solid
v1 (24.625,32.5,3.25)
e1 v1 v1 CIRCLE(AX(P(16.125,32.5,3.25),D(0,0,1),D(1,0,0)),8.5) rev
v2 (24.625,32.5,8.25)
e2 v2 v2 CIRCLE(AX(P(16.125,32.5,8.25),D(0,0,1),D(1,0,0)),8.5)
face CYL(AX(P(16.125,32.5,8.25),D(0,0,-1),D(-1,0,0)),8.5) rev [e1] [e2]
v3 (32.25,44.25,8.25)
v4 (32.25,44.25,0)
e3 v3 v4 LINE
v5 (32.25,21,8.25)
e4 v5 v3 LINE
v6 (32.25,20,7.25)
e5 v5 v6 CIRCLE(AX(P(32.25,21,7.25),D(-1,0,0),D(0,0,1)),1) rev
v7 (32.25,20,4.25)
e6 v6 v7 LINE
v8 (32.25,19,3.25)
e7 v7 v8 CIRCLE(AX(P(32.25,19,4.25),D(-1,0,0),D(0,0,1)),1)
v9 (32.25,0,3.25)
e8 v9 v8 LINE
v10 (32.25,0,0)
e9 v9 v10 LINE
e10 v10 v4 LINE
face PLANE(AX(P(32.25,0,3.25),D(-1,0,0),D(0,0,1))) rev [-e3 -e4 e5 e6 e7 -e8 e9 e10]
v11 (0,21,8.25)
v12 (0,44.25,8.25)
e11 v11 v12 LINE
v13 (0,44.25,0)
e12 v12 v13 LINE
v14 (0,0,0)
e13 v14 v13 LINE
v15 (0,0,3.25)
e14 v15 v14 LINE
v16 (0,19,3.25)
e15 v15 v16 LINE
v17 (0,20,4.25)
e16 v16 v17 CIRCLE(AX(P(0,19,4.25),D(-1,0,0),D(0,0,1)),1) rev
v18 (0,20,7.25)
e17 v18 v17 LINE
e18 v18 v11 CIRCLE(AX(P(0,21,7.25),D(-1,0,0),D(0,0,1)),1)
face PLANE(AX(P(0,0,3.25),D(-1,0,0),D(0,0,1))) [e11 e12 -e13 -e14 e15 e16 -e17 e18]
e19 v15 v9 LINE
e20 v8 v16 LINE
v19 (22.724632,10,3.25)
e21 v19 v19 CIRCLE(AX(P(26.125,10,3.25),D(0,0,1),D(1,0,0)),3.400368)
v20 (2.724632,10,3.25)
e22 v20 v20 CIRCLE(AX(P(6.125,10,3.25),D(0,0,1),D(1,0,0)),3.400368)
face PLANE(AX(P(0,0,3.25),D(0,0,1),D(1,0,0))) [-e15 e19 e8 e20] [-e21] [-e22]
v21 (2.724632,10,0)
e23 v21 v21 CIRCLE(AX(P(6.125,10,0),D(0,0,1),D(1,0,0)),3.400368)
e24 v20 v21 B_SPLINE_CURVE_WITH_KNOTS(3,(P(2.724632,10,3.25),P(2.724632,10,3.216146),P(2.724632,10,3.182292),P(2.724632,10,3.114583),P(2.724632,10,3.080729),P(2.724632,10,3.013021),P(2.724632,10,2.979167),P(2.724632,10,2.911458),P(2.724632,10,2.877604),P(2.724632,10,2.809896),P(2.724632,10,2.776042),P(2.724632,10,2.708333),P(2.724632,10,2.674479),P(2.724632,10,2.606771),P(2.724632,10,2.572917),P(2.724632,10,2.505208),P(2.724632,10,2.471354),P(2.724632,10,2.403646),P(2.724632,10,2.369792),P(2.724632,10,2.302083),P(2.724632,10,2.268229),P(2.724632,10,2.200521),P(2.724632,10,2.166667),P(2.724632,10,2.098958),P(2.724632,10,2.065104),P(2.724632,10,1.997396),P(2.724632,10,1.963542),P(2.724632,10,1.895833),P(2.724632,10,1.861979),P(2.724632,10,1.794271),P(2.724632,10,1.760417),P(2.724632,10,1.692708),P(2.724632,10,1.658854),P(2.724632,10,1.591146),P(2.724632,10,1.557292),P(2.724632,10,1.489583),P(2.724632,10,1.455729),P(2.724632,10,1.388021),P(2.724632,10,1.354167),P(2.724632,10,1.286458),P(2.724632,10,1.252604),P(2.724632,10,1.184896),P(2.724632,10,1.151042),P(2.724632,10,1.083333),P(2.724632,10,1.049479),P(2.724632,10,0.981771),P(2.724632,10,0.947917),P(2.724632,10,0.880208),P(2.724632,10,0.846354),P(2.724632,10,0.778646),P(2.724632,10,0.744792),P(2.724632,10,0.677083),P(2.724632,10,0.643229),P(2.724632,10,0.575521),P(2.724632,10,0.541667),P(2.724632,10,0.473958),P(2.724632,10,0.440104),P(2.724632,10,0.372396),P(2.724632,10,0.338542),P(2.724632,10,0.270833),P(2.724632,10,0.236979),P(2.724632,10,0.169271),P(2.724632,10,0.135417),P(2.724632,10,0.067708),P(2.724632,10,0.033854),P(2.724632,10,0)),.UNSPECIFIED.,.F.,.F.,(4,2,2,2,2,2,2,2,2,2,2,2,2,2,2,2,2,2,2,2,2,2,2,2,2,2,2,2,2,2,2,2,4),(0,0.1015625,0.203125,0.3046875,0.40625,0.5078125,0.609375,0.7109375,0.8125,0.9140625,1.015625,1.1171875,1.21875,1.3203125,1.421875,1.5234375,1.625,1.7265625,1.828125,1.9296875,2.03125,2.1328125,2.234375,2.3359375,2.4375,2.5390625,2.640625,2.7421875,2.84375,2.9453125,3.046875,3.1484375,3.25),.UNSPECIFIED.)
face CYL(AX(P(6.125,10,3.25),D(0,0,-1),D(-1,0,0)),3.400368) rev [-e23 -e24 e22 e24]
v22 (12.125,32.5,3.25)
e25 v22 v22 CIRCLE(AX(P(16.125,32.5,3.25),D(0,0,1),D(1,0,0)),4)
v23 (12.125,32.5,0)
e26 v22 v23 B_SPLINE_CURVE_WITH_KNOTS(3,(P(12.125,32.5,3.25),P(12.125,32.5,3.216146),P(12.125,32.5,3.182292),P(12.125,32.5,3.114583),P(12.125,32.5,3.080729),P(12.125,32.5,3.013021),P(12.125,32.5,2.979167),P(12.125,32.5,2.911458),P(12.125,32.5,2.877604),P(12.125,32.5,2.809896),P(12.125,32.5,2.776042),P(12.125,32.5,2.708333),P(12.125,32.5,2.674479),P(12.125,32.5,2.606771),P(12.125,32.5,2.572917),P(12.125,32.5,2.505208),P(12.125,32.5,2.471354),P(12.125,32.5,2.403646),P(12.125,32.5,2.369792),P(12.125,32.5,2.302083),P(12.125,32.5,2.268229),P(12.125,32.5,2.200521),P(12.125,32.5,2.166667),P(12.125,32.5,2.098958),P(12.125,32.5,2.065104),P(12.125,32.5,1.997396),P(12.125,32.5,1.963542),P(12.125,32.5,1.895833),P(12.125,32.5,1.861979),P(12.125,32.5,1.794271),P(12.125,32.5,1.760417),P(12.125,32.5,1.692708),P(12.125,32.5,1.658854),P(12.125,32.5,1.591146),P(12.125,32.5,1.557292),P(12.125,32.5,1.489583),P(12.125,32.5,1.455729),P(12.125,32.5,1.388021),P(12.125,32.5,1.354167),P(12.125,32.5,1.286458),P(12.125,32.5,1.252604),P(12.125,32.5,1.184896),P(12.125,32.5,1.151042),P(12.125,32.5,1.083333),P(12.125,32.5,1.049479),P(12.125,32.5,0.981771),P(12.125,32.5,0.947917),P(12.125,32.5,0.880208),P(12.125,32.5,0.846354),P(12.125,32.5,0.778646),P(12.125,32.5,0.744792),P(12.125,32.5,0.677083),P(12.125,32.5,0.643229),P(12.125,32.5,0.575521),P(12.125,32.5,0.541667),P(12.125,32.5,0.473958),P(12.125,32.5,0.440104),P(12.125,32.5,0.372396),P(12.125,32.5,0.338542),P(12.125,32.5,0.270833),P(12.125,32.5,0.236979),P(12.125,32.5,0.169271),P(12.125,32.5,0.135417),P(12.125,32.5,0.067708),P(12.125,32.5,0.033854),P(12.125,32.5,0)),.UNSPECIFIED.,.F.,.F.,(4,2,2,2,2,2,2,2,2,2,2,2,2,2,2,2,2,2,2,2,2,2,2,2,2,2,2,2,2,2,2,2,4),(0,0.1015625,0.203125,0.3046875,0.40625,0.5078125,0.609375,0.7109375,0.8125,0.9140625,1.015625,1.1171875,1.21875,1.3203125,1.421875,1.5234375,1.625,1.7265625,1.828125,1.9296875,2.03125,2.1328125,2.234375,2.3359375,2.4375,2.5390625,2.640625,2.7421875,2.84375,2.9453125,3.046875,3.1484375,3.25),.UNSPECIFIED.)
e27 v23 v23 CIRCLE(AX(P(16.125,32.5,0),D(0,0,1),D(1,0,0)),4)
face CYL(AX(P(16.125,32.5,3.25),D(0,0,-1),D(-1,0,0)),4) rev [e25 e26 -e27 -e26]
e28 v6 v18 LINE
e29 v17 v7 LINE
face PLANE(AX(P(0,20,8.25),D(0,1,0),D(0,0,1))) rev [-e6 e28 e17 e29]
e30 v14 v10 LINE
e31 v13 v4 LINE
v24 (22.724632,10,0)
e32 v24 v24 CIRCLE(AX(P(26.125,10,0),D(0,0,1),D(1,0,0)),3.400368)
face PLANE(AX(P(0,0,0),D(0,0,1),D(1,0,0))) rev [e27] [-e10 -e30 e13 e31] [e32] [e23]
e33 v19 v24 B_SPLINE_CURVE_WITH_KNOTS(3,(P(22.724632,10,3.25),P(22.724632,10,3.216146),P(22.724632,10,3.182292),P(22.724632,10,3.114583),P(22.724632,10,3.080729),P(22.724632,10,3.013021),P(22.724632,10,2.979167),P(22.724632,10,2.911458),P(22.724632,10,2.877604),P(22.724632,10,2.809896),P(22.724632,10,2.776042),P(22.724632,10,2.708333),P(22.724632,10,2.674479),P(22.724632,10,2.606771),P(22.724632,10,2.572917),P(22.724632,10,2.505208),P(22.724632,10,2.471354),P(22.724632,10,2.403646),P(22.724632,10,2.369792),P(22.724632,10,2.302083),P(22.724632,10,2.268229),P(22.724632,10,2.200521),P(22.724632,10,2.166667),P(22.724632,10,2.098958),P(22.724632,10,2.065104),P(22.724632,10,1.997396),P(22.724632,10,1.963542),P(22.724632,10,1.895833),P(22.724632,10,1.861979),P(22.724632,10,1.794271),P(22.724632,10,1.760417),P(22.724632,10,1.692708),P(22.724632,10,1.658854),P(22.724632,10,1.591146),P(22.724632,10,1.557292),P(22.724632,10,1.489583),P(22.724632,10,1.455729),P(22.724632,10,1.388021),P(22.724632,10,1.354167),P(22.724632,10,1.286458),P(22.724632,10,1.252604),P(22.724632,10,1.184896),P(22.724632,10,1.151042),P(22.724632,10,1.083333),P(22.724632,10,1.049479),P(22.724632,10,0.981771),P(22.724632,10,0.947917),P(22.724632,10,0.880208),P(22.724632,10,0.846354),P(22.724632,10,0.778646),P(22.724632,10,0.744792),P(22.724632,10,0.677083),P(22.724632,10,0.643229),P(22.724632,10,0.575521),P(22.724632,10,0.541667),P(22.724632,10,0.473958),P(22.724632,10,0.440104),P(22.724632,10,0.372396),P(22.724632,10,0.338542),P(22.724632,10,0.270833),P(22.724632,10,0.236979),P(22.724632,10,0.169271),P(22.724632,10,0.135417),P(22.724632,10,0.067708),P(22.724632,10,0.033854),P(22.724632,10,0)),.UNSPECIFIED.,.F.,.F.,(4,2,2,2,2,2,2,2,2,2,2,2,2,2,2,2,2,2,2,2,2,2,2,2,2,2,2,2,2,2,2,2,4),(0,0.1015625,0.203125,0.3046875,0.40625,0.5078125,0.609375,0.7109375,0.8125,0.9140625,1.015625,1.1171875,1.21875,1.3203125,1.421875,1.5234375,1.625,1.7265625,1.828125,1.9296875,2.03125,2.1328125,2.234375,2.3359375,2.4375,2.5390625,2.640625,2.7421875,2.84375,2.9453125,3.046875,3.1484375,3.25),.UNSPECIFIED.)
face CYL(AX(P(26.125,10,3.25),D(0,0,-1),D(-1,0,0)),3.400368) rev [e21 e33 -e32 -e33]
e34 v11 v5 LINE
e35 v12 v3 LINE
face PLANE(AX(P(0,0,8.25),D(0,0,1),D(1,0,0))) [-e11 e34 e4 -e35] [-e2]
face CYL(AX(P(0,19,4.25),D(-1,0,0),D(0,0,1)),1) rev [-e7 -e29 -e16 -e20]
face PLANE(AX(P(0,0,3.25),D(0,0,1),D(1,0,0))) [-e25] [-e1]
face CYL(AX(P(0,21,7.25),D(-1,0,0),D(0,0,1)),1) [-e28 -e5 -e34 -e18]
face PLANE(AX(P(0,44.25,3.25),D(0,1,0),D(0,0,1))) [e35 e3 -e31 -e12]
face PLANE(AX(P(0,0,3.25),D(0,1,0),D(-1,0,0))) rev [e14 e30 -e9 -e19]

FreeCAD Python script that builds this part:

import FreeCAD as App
import Part
import Sketcher

V = App.Vector


def edges_at(feature, points):
    """Names of the edges that pass closest to the given points."""
    edges = feature.Shape.Edges
    near = lambda p: min(range(len(edges)), key=lambda i: edges[i].distToShape(Part.Vertex(*p))[0])
    return sorted({f"Edge{near(p) + 1}" for p in points})

doc = App.newDocument("Part")
body = doc.addObject("PartDesign::Body", "Body")

sketch1 = body.newObject("Sketcher::SketchObject", "Sketch")
sketch1.AttachmentSupport = (doc.getObject("XY_Plane"), [""])
sketch1.MapMode = "FlatFace"
sketch1.addGeometry([
    Part.LineSegment(V(0, 0, 0), V(32.2, 0, 0)),
    Part.LineSegment(V(32.2, 0, 0), V(32.2, 44.2, 0)),
    Part.LineSegment(V(32.2, 44.2, 0), V(0, 44.2, 0)),
    Part.LineSegment(V(0, 44.2, 0), V(0, 0, 0)),
    Part.Circle(V(6.1, 10, 0), V(0, 0, 1), 3.4),
    Part.Circle(V(26.1, 10, 0), V(0, 0, 1), 3.4),
    Part.Circle(V(16.1, 32.5, 0), V(0, 0, 1), 4),
], False)
sketch1.addConstraint([
    Sketcher.Constraint("Coincident", 0, 2, 1, 1),
    Sketcher.Constraint("Coincident", 1, 2, 2, 1),
    Sketcher.Constraint("Coincident", 2, 2, 3, 1),
    Sketcher.Constraint("Coincident", 3, 2, 0, 1),
    Sketcher.Constraint("Horizontal", 0),
    Sketcher.Constraint("Vertical", 1),
    Sketcher.Constraint("Horizontal", 2),
    Sketcher.Constraint("Vertical", 3),
    Sketcher.Constraint("Coincident", 3, 2, -1, 1),
    Sketcher.Constraint("Equal", 4, 5),
    Sketcher.Constraint("Horizontal", 4, 3, 5, 3),
    Sketcher.Constraint("Diameter", 6, 8.0),
    Sketcher.Constraint("DistanceY", -1, 1, 4, 3, 10.0),
    Sketcher.Constraint("DistanceX", 4, 3, 5, 3, 20.0),
    Sketcher.Constraint("DistanceX", 4, 3, 6, 3, 10.0),
    Sketcher.Constraint("DistanceX", 0, 1, 0, 2, 32.25),
    Sketcher.Constraint("DistanceY", 1, 1, 1, 2, 44.25),
    Sketcher.Constraint("DistanceY", -1, 1, 6, 3, 32.5),
    Sketcher.Constraint("Diameter", 4, 6.800735),
    Sketcher.Constraint("DistanceX", -1, 1, 4, 3, 6.125),
])
pad1 = body.newObject("PartDesign::Pad", "Pad")
pad1.Profile = sketch1
pad1.Length = 3.25

sketch2 = body.newObject("Sketcher::SketchObject", "Sketch001")
sketch2.AttachmentSupport = (doc.getObject("XY_Plane"), [""])
sketch2.MapMode = "FlatFace"
sketch2.addGeometry([
    Part.LineSegment(V(0, 44, 0), V(0, 20, 0)),
    Part.LineSegment(V(0, 20, 0), V(32, 20, 0)),
    Part.LineSegment(V(32, 20, 0), V(32, 44, 0)),
    Part.LineSegment(V(32, 44, 0), V(0, 44, 0)),
    Part.Circle(V(16, 32, 0), V(0, 0, 1), 8),
], False)
sketch2.addConstraint([
    Sketcher.Constraint("Coincident", 0, 2, 1, 1),
    Sketcher.Constraint("Coincident", 1, 2, 2, 1),
    Sketcher.Constraint("Coincident", 2, 2, 3, 1),
    Sketcher.Constraint("Coincident", 3, 2, 0, 1),
    Sketcher.Constraint("Vertical", 0),
    Sketcher.Constraint("Horizontal", 1),
    Sketcher.Constraint("Vertical", 2),
    Sketcher.Constraint("Horizontal", 3),
    Sketcher.Constraint("PointOnObject", 0, 2, -2),
    Sketcher.Constraint("Diameter", 4, 17.0),
    Sketcher.Constraint("DistanceY", -1, 1, 0, 2, 20.0),
    Sketcher.Constraint("DistanceX", 1, 1, 1, 2, 32.25),
    Sketcher.Constraint("DistanceY", 0, 2, 0, 1, 24.25),
    Sketcher.Constraint("DistanceY", -1, 1, 4, 3, 32.5),
    Sketcher.Constraint("DistanceX", -1, 1, 4, 3, 16.125),
])
pad2 = body.newObject("PartDesign::Pad", "Pad001")
pad2.Profile = sketch2
pad2.Length = 8.25
doc.recompute()

fillet = body.newObject("PartDesign::Fillet", "Fillet")
fillet.Base = (pad2, edges_at(pad2, [(16.125, 20, 3.25), (16.125, 20, 8.25)]))
fillet.Radius = 1

doc.recompute()
